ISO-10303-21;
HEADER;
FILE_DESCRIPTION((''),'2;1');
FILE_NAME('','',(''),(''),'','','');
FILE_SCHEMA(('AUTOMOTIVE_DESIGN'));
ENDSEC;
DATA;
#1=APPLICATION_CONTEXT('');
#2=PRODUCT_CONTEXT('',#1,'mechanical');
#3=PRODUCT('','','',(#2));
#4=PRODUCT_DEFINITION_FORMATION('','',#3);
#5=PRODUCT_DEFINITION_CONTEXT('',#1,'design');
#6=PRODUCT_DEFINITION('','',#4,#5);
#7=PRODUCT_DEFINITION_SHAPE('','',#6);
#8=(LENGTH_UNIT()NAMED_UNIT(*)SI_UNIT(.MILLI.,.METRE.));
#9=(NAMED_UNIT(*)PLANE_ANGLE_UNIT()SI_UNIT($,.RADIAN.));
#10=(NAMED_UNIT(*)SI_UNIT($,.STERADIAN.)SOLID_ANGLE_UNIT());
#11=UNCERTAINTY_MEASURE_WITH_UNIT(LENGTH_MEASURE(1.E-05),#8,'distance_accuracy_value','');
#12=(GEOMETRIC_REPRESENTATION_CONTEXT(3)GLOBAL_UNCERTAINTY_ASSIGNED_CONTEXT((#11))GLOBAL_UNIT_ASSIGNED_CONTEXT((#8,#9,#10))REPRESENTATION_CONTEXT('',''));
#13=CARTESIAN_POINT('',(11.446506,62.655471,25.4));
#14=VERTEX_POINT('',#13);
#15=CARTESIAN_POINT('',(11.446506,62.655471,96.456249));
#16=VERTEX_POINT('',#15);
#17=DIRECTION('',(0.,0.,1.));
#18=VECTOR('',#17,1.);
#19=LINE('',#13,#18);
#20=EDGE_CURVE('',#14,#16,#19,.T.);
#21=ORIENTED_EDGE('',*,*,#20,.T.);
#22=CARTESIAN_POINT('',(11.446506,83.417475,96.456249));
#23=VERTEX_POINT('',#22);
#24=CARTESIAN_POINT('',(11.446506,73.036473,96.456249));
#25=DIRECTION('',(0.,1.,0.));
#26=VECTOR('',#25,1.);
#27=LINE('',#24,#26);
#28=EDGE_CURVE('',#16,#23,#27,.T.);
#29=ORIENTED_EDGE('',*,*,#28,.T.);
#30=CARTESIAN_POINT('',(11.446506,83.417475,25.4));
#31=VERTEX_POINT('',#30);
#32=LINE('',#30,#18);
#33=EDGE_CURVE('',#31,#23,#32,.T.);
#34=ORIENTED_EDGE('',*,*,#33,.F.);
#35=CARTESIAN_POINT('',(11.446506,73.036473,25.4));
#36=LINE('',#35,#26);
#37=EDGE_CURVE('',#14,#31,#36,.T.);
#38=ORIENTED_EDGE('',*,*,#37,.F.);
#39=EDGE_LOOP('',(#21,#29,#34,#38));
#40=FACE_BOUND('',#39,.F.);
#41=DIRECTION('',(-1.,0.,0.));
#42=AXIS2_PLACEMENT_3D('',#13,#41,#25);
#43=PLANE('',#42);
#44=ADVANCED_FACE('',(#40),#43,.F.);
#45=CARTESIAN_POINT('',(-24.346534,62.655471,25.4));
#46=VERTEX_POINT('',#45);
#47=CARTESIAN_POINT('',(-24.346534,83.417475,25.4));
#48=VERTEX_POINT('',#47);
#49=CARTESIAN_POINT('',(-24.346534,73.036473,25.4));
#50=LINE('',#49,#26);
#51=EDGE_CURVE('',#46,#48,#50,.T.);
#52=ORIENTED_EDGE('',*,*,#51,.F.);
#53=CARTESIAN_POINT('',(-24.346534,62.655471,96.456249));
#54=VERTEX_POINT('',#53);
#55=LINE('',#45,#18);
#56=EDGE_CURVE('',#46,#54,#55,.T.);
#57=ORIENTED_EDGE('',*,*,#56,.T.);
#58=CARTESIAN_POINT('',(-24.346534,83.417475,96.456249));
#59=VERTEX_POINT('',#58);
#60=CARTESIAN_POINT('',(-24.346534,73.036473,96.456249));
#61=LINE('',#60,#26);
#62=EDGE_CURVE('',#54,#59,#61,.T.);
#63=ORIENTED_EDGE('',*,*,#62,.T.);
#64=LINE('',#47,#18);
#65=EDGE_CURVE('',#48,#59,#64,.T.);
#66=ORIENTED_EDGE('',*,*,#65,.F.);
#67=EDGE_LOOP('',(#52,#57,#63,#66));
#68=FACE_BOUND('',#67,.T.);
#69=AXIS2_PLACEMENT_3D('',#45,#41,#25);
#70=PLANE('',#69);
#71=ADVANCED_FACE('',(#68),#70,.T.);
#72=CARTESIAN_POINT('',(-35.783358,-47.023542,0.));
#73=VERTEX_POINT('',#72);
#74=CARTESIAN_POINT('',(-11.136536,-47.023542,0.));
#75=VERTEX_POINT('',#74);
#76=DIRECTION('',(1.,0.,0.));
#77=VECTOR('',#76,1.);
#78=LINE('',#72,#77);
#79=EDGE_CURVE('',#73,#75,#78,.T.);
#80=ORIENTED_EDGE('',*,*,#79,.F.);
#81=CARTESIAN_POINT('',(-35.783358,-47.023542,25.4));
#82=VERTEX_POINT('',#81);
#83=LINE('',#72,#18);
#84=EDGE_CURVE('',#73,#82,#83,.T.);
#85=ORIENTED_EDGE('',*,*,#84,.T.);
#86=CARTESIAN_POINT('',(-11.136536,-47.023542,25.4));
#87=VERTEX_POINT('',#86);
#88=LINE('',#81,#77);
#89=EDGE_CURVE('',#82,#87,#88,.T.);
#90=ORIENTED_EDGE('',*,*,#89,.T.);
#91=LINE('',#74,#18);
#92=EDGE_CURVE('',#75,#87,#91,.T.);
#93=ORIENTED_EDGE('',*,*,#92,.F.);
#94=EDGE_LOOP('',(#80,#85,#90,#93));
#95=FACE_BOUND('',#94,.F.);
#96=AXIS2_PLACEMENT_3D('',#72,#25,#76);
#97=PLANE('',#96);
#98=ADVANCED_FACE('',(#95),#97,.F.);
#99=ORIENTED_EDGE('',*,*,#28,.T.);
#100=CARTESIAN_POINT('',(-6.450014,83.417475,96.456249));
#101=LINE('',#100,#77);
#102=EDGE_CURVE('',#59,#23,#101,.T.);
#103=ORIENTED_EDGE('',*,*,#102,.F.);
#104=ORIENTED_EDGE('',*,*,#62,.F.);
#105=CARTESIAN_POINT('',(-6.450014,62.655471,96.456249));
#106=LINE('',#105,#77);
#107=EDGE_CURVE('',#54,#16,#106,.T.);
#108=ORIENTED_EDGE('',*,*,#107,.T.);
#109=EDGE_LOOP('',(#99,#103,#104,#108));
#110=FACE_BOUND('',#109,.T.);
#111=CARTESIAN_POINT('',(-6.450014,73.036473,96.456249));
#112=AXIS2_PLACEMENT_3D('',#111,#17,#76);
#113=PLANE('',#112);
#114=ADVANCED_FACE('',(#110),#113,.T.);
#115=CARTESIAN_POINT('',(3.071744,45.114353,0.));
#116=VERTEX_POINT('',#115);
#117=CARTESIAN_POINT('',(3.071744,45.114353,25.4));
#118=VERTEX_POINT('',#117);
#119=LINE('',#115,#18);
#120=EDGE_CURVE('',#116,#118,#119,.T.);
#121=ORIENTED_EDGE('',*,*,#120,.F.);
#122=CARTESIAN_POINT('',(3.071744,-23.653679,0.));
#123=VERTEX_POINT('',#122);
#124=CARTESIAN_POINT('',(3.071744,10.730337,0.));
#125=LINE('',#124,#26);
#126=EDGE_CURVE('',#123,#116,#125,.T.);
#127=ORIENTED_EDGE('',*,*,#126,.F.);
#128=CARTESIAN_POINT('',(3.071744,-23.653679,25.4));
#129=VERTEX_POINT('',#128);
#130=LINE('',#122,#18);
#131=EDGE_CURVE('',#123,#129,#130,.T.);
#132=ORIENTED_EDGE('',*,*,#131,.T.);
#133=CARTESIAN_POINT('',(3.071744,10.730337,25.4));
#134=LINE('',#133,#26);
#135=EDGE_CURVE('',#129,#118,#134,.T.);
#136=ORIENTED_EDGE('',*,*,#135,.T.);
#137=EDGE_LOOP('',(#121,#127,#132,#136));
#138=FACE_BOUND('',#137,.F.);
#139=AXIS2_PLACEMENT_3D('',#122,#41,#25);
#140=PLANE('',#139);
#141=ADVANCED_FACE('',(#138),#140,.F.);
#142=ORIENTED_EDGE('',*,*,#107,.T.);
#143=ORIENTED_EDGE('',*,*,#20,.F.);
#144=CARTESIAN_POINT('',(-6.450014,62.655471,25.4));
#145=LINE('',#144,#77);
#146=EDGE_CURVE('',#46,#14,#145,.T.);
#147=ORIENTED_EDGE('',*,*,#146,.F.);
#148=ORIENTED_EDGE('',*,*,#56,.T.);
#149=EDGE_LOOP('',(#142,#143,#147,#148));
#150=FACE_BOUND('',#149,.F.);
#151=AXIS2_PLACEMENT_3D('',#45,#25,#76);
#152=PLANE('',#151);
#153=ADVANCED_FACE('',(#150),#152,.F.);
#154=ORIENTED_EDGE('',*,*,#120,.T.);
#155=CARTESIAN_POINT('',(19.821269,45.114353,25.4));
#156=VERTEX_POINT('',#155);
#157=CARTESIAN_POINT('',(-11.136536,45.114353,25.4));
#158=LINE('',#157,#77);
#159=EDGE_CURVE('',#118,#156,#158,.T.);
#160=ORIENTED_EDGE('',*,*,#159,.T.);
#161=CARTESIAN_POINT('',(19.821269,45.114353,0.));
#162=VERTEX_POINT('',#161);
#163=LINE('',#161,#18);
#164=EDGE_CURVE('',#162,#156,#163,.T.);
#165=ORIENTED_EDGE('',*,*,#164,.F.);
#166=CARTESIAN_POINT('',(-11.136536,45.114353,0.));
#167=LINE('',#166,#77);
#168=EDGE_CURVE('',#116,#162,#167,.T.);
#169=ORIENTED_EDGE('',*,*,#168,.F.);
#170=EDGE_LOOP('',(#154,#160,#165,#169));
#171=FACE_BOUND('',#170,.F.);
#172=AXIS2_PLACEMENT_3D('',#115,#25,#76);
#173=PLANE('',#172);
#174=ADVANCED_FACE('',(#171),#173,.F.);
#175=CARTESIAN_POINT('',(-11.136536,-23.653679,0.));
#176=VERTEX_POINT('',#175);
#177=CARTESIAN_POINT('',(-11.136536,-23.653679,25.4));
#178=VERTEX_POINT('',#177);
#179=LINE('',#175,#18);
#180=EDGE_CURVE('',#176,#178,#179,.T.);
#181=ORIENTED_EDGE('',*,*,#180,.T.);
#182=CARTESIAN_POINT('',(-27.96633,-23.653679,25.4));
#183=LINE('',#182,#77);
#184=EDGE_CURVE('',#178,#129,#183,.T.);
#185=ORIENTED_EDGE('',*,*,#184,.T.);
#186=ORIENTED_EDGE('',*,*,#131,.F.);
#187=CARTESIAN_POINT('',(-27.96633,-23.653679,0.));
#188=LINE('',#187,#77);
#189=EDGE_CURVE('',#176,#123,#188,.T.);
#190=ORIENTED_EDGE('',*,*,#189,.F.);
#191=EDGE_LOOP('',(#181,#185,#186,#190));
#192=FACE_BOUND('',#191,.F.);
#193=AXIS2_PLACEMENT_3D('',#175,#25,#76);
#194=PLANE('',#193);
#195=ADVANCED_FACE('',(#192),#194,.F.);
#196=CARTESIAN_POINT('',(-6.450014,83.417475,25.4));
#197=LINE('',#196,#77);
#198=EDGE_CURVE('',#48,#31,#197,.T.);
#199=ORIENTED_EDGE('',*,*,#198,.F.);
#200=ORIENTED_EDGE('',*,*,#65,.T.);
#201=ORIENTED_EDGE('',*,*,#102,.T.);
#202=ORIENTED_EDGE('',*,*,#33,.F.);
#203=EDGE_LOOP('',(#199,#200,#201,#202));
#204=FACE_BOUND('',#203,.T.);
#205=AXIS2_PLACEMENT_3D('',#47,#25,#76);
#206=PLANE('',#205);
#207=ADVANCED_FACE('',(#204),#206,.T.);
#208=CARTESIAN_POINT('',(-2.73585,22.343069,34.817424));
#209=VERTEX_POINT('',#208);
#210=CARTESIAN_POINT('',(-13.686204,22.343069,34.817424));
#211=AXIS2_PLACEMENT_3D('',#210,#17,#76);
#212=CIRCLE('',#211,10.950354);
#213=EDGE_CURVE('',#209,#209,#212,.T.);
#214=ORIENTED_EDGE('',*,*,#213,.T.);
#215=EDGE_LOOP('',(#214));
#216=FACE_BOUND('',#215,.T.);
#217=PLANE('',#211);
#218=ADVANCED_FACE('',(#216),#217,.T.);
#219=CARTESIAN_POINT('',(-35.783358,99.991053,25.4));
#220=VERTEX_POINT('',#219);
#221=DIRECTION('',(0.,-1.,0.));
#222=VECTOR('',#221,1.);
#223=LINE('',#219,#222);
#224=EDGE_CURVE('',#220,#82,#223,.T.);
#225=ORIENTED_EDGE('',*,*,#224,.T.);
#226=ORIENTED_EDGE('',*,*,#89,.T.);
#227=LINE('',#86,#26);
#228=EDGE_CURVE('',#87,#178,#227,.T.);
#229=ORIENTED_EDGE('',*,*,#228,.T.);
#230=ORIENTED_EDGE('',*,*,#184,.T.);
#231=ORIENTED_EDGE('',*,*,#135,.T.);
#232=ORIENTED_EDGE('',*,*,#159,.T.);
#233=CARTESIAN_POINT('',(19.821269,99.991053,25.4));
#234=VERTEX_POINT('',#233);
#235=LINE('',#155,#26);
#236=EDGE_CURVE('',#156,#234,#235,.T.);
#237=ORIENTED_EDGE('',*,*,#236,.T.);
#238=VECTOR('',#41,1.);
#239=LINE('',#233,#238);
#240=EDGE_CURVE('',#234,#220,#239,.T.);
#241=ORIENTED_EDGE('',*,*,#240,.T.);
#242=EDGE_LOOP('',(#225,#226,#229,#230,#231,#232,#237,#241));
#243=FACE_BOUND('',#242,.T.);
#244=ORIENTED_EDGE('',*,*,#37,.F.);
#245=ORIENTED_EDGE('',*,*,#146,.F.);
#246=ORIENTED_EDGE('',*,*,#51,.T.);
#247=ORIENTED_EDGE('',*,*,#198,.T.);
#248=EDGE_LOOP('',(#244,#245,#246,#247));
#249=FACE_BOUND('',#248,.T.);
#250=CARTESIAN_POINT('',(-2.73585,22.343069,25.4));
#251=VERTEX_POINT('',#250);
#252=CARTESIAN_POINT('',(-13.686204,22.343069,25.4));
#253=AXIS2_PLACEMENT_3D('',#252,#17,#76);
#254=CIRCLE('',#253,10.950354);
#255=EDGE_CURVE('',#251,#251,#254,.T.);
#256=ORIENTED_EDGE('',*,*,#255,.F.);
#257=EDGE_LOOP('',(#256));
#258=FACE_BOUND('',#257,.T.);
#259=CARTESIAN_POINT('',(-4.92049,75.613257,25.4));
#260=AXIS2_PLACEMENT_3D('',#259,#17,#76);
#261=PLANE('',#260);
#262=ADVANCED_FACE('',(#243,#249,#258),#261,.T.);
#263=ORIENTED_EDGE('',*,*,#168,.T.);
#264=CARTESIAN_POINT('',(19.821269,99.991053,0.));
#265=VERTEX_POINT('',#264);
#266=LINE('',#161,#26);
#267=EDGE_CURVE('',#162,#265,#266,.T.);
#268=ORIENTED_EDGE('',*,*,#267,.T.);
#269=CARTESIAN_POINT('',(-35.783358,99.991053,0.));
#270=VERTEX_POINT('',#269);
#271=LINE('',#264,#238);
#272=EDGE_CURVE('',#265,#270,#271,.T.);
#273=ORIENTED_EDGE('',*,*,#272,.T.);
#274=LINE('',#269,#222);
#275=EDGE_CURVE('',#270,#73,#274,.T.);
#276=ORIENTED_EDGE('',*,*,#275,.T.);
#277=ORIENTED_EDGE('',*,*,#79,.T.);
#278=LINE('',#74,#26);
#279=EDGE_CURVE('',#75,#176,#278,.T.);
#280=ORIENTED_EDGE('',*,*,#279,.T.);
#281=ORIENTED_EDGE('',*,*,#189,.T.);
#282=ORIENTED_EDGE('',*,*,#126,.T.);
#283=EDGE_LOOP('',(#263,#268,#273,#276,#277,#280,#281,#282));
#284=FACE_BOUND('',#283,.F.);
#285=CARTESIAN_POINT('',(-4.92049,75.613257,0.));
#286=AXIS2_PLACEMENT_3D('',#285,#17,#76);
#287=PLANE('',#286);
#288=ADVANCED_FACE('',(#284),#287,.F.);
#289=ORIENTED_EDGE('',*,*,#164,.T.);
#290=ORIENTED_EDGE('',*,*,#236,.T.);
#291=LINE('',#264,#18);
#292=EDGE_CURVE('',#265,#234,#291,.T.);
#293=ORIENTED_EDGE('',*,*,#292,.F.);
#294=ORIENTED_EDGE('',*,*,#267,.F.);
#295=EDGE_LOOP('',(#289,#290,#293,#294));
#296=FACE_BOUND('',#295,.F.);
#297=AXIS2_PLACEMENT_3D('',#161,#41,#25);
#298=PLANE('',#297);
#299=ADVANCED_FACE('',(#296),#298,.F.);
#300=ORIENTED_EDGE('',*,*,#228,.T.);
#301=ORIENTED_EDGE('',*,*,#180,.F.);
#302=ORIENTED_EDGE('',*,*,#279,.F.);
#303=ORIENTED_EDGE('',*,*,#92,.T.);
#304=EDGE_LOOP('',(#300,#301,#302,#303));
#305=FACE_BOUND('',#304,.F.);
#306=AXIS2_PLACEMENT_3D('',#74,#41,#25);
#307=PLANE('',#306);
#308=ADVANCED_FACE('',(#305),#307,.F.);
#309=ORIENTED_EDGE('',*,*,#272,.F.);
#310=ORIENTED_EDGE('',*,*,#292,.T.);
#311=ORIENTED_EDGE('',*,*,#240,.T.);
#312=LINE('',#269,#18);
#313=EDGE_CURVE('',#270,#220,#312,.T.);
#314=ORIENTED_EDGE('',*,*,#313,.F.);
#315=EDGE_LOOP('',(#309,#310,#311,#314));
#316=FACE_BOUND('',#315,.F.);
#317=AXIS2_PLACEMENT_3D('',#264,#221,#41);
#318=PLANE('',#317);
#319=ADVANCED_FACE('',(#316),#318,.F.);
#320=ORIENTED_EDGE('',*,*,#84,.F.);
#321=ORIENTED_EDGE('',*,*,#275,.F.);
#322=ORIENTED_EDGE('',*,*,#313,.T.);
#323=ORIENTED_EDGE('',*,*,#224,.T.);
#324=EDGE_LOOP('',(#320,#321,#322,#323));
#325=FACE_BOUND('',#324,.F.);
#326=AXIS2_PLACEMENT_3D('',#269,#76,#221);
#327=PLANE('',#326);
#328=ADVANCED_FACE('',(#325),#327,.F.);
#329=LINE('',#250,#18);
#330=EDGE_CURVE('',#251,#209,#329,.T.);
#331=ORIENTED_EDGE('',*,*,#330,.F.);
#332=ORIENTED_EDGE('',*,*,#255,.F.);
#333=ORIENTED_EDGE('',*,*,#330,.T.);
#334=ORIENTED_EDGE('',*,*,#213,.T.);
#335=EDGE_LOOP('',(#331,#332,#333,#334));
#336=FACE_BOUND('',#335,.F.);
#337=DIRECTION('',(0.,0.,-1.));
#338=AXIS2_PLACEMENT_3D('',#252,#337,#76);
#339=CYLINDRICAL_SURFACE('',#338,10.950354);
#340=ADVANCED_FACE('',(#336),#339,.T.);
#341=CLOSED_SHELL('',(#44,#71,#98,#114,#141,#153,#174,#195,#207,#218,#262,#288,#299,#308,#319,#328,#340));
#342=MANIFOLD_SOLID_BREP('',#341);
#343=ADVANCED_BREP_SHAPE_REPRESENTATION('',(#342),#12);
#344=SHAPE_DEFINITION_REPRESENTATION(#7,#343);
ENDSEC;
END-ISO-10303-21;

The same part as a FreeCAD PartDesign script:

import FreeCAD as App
import Part
import Sketcher
Q = App.Units.Quantity


def add_polygon(sketch, points):
    """Adds a closed chain of lines whose ends are joined by coincident constraints."""
    first, n = sketch.GeometryCount, len(points)
    for a, b in zip(points, points[1:] + points[:1]):
        sketch.addGeometry(Part.LineSegment(App.Vector(*a, 0), App.Vector(*b, 0)), False)
    for i in range(n):
        sketch.addConstraint(Sketcher.Constraint("Coincident", first + i, 2, first + (i + 1) % n, 1))

doc = App.newDocument("Part")
body = doc.addObject("PartDesign::Body", "Body")

# Sketch on XY plane
sketch1 = body.newObject("Sketcher::SketchObject", "Sketch")
sketch1.AttachmentSupport = (doc.getObject("XY_Plane"), [""])
sketch1.MapMode = "FlatFace"
add_polygon(sketch1, [(20, 45), (20, 100), (-36, 100), (-36, -47), (-11, -47), (-11, -24), (3, -24), (3, 45)])  # lines 0-7
sketch1.addConstraint(Sketcher.Constraint("Vertical", 0))
sketch1.addConstraint(Sketcher.Constraint("Horizontal", 1))
sketch1.addConstraint(Sketcher.Constraint("Vertical", 2))
sketch1.addConstraint(Sketcher.Constraint("Horizontal", 3))
sketch1.addConstraint(Sketcher.Constraint("Vertical", 4))
sketch1.addConstraint(Sketcher.Constraint("Horizontal", 5))
sketch1.addConstraint(Sketcher.Constraint("Vertical", 6))
sketch1.addConstraint(Sketcher.Constraint("Horizontal", 7))
sketch1.addConstraint(Sketcher.Constraint("DistanceY", 0, 1, 0, 2, Q("2.1605 in")))
sketch1.addConstraint(Sketcher.Constraint("DistanceX", 5, 1, 5, 2, Q("14.208279 mm")))
sketch1.addConstraint(Sketcher.Constraint("DistanceY", 6, 1, 6, 2, Q("68.768032 mm")))
sketch1.addConstraint(Sketcher.Constraint("DistanceX", 2, 2, 5, 2, Q("38.855101 mm")))
sketch1.addConstraint(Sketcher.Constraint("DistanceX", 1, 2, 1, 1, Q("55.604627 mm")))
sketch1.addConstraint(Sketcher.Constraint("DistanceY", 2, 2, 2, 1, Q("147.014596 mm")))
sketch1.addConstraint(Sketcher.Constraint("DistanceX", -1, 1, 0, 2, Q("19.821269 mm")))
sketch1.addConstraint(Sketcher.Constraint("DistanceY", 4, 2, -1, 1, Q("23.653679 mm")))
pad1 = body.newObject("PartDesign::Pad", "Pad")
pad1.Profile = sketch1
pad1.Length = Q("1 in")

# Sketch on XY plane
sketch2 = body.newObject("Sketcher::SketchObject", "Sketch001")
sketch2.AttachmentSupport = (doc.getObject("XY_Plane"), [""])
sketch2.MapMode = "FlatFace"
sketch2.AttachmentOffset = App.Placement(App.Vector(0, 0, 1 * 25.4), App.Rotation())
sketch2.addGeometry(Part.Circle(App.Vector(-14, 22, 0), App.Vector(0, 0, 1), 11), False)
sketch2.addConstraint(Sketcher.Constraint("Diameter", 0, Q("21.900708 mm")))
sketch2.addConstraint(Sketcher.Constraint("DistanceY", -1, 1, 0, 3, Q("22.343069 mm")))
sketch2.addConstraint(Sketcher.Constraint("DistanceX", 0, 3, -1, 1, Q("13.686204 mm")))
pad2 = body.newObject("PartDesign::Pad", "Pad001")
pad2.Profile = sketch2
pad2.Length = 9.417424

# Sketch on XY plane
sketch3 = body.newObject("Sketcher::SketchObject", "Sketch002")
sketch3.AttachmentSupport = (doc.getObject("XY_Plane"), [""])
sketch3.MapMode = "FlatFace"
sketch3.AttachmentOffset = App.Placement(App.Vector(0, 0, 1 * 25.4), App.Rotation())
add_polygon(sketch3, [(-24, 83), (-24, 63), (11, 63), (11, 83)])  # lines 0-3
sketch3.addConstraint(Sketcher.Constraint("Vertical", 0))
sketch3.addConstraint(Sketcher.Constraint("Horizontal", 1))
sketch3.addConstraint(Sketcher.Constraint("Vertical", 2))
sketch3.addConstraint(Sketcher.Constraint("Horizontal", 3))
sketch3.addConstraint(Sketcher.Constraint("DistanceX", 1, 1, 1, 2, Q("35.793041 mm")))
sketch3.addConstraint(Sketcher.Constraint("DistanceY", 0, 2, 0, 1, Q("20.762004 mm")))
sketch3.addConstraint(Sketcher.Constraint("DistanceY", -1, 1, 0, 2, Q("62.655471 mm")))
sketch3.addConstraint(Sketcher.Constraint("DistanceX", 0, 2, -1, 1, Q("24.346534 mm")))
pad3 = body.newObject("PartDesign::Pad", "Pad002")
pad3.Profile = sketch3
pad3.Length = 71.056249

doc.recompute()
